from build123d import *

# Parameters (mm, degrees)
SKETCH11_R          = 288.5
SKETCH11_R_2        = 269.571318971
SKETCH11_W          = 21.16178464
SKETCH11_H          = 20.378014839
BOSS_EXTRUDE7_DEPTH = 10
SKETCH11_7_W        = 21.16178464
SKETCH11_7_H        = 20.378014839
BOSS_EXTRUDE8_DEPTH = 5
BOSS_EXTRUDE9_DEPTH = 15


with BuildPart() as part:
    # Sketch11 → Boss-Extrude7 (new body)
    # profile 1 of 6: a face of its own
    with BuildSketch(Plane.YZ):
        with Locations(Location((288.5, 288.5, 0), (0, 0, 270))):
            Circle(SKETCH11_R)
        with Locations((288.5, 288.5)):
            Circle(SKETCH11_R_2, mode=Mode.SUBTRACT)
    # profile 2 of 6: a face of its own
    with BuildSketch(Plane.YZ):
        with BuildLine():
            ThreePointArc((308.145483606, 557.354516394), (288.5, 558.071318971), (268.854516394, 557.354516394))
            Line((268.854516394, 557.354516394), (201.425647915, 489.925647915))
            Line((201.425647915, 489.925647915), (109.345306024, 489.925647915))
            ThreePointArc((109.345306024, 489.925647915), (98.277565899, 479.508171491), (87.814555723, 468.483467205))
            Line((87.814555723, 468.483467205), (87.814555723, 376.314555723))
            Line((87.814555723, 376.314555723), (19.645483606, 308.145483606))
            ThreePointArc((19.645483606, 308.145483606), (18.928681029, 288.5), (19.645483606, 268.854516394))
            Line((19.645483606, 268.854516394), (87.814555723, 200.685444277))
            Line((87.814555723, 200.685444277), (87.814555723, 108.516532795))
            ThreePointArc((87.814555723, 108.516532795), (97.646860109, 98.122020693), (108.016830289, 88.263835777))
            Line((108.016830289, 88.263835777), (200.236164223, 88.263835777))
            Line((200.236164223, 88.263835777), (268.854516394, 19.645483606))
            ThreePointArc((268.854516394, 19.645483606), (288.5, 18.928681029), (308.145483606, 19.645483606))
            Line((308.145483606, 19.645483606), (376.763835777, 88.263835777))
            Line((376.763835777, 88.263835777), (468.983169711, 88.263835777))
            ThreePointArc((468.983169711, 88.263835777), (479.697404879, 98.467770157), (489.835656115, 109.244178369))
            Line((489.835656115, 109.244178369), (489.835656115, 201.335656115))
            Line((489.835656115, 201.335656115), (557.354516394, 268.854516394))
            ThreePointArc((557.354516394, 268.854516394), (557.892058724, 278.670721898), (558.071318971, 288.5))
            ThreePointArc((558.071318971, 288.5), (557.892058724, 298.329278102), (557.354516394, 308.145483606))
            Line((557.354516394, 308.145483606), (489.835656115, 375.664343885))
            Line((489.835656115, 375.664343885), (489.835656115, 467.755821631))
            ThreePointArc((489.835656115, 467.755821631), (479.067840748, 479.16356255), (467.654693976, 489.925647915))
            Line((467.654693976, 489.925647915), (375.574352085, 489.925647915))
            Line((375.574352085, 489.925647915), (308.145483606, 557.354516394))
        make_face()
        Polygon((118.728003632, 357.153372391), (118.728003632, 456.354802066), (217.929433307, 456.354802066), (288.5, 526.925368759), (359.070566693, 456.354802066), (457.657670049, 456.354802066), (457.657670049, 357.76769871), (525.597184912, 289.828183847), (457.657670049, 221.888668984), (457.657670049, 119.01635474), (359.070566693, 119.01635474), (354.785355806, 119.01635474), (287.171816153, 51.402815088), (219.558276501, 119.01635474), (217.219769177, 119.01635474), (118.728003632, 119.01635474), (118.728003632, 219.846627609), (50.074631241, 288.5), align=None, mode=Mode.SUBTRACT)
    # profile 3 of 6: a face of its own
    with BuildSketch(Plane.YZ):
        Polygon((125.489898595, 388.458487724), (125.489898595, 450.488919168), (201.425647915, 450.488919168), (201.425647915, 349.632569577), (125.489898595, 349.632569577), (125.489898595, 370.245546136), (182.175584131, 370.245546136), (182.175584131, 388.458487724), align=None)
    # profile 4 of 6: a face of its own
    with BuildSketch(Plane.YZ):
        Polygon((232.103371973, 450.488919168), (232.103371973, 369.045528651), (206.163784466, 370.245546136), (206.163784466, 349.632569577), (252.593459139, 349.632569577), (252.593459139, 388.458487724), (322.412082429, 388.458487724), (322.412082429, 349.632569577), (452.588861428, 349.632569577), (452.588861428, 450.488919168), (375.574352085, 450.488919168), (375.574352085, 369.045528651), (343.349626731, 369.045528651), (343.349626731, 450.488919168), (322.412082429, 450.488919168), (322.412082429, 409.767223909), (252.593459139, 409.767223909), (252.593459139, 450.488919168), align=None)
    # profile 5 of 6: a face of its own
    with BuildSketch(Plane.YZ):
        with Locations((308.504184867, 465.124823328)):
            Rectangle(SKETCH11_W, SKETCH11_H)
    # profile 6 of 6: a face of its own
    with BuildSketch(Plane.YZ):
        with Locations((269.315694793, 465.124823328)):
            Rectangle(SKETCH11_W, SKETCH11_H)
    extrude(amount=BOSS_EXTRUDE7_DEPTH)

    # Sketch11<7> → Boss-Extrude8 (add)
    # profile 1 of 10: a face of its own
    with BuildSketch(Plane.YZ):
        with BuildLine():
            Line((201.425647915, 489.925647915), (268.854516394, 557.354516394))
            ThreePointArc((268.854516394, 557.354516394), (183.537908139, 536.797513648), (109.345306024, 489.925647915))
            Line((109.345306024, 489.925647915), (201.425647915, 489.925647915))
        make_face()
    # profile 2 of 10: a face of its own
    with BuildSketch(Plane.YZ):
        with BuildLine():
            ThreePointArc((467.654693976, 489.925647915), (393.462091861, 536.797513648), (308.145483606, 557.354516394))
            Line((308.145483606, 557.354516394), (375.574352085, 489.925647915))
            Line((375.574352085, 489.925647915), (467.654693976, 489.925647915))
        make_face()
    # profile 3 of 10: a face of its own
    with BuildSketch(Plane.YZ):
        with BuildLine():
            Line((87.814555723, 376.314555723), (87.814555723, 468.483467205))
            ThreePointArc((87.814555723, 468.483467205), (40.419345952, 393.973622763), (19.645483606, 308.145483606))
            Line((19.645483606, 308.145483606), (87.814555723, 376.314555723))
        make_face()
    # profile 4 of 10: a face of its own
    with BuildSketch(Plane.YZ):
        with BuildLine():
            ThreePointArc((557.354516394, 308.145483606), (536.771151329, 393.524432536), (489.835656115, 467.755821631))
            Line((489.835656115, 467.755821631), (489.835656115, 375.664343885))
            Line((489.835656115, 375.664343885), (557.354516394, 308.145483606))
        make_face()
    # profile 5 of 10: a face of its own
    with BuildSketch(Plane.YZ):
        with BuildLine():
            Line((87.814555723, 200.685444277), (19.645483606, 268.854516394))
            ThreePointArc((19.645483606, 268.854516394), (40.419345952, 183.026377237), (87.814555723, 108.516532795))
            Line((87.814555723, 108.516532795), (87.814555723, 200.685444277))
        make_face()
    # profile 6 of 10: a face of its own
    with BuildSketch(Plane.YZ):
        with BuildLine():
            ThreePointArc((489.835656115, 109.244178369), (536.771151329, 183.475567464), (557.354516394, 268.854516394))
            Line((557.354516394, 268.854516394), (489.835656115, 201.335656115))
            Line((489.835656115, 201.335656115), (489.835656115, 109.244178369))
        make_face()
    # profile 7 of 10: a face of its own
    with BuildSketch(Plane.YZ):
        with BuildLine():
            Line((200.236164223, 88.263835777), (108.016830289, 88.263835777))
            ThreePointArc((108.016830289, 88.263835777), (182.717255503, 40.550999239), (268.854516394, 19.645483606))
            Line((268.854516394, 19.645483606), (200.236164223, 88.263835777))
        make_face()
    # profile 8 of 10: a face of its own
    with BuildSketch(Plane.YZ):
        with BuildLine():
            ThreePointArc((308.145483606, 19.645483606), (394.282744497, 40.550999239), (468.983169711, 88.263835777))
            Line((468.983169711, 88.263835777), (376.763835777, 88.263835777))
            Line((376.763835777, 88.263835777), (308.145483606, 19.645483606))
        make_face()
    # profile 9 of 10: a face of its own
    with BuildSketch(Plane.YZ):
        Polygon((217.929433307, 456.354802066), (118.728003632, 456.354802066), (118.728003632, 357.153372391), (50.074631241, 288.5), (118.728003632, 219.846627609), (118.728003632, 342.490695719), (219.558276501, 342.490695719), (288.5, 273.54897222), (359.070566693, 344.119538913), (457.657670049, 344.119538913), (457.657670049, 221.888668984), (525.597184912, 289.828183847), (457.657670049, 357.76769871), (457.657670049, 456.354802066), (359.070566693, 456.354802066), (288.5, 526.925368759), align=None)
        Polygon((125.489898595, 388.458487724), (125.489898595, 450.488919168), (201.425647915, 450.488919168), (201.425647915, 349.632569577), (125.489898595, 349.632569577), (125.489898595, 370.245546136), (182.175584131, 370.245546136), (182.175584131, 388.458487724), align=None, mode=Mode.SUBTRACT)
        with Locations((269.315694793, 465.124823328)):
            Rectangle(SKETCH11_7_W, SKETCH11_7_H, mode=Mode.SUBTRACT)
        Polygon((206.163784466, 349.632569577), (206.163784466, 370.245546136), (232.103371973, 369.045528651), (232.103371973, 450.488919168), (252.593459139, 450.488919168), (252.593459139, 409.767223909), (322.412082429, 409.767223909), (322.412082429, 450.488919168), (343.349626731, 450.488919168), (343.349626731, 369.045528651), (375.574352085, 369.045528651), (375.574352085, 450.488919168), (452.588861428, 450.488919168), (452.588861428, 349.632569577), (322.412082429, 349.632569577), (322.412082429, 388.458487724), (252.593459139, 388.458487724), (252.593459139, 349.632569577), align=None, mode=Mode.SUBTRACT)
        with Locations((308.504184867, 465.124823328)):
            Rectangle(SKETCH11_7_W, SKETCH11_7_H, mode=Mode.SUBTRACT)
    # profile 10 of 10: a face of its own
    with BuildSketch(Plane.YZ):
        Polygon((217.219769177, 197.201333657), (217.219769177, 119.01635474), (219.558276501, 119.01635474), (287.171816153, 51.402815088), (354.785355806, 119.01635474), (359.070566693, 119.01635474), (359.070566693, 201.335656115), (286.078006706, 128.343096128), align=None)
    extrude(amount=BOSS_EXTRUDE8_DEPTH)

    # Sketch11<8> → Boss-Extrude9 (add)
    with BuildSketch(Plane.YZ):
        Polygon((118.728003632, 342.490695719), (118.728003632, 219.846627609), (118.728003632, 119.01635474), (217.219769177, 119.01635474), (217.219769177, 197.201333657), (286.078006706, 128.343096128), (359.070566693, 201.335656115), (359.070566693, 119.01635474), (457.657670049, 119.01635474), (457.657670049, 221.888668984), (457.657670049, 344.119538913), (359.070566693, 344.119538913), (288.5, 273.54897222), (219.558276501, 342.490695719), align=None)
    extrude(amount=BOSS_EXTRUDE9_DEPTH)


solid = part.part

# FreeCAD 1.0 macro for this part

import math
import FreeCAD as App
import Part
import Sketcher
Q = App.Units.Quantity

doc = App.newDocument("Part")
body = doc.addObject("PartDesign::Body", "Body")
body.AllowCompound = True

# Sketch on YZ plane
sketch1 = body.newObject("Sketcher::SketchObject", "Sketch")
sketch1.AttachmentSupport = (doc.getObject("YZ_Plane"), [""])
sketch1.MapMode = "FlatFace"
sketch1.addGeometry([
    Part.Circle(App.Vector(288, 288, 0), App.Vector(0, 0, 1), 288),  # 0
    Part.ArcOfCircle(Part.Circle(App.Vector(288, 288, 0), App.Vector(0, 0, 1), 270), math.radians(4), math.radians(42)),  # 1
    Part.LineSegment(App.Vector(557, 308, 0), App.Vector(490, 376, 0)),  # 2
    Part.LineSegment(App.Vector(490, 376, 0), App.Vector(490, 468, 0)),  # 3
    Part.ArcOfCircle(Part.Circle(App.Vector(288, 288, 0), App.Vector(0, 0, 1), 270), math.radians(48), math.radians(86)),  # 4
    Part.LineSegment(App.Vector(468, 490, 0), App.Vector(376, 490, 0)),  # 5
    Part.LineSegment(App.Vector(376, 490, 0), App.Vector(308, 557, 0)),  # 6
    Part.ArcOfCircle(Part.Circle(App.Vector(288, 288, 0), App.Vector(0, 0, 1), 270), math.radians(94), math.radians(132)),  # 7
    Part.LineSegment(App.Vector(269, 557, 0), App.Vector(201, 490, 0)),  # 8
    Part.LineSegment(App.Vector(201, 490, 0), App.Vector(109, 490, 0)),  # 9
    Part.ArcOfCircle(Part.Circle(App.Vector(288, 288, 0), App.Vector(0, 0, 1), 270), math.radians(138), math.radians(176)),  # 10
    Part.LineSegment(App.Vector(88, 468, 0), App.Vector(88, 376, 0)),  # 11
    Part.LineSegment(App.Vector(88, 376, 0), App.Vector(20, 308, 0)),  # 12
    Part.ArcOfCircle(Part.Circle(App.Vector(288, 288, 0), App.Vector(0, 0, 1), 270), math.radians(-176), math.radians(-138)),  # 13
    Part.LineSegment(App.Vector(20, 269, 0), App.Vector(88, 201, 0)),  # 14
    Part.LineSegment(App.Vector(88, 201, 0), App.Vector(88, 109, 0)),  # 15
    Part.ArcOfCircle(Part.Circle(App.Vector(288, 288, 0), App.Vector(0, 0, 1), 270), math.radians(-132), math.radians(-94)),  # 16
    Part.LineSegment(App.Vector(108, 88, 0), App.Vector(200, 88, 0)),  # 17
    Part.LineSegment(App.Vector(200, 88, 0), App.Vector(269, 20, 0)),  # 18
    Part.ArcOfCircle(Part.Circle(App.Vector(288, 288, 0), App.Vector(0, 0, 1), 270), math.radians(-86), math.radians(-48)),  # 19
    Part.LineSegment(App.Vector(308, 20, 0), App.Vector(377, 88, 0)),  # 20
    Part.LineSegment(App.Vector(377, 88, 0), App.Vector(469, 88, 0)),  # 21
    Part.ArcOfCircle(Part.Circle(App.Vector(288, 288, 0), App.Vector(0, 0, 1), 270), math.radians(-42), math.radians(-4)),  # 22
    Part.LineSegment(App.Vector(490, 109, 0), App.Vector(490, 201, 0)),  # 23
    Part.LineSegment(App.Vector(490, 201, 0), App.Vector(557, 269, 0)),  # 24
    Part.LineSegment(App.Vector(220, 119, 0), App.Vector(119, 119, 0)),  # 25
    Part.LineSegment(App.Vector(119, 119, 0), App.Vector(119, 220, 0)),  # 26
    Part.LineSegment(App.Vector(119, 220, 0), App.Vector(50, 288, 0)),  # 27
    Part.LineSegment(App.Vector(50, 288, 0), App.Vector(119, 357, 0)),  # 28
    Part.LineSegment(App.Vector(119, 357, 0), App.Vector(119, 456, 0)),  # 29
    Part.LineSegment(App.Vector(119, 456, 0), App.Vector(218, 456, 0)),  # 30
    Part.LineSegment(App.Vector(218, 456, 0), App.Vector(288, 527, 0)),  # 31
    Part.LineSegment(App.Vector(288, 527, 0), App.Vector(359, 456, 0)),  # 32
    Part.LineSegment(App.Vector(359, 456, 0), App.Vector(458, 456, 0)),  # 33
    Part.LineSegment(App.Vector(458, 456, 0), App.Vector(458, 358, 0)),  # 34
    Part.LineSegment(App.Vector(458, 358, 0), App.Vector(526, 290, 0)),  # 35
    Part.LineSegment(App.Vector(526, 290, 0), App.Vector(458, 222, 0)),  # 36
    Part.LineSegment(App.Vector(458, 222, 0), App.Vector(458, 119, 0)),  # 37
    Part.LineSegment(App.Vector(458, 119, 0), App.Vector(355, 119, 0)),  # 38
    Part.LineSegment(App.Vector(355, 119, 0), App.Vector(287, 51, 0)),  # 39
    Part.LineSegment(App.Vector(287, 51, 0), App.Vector(220, 119, 0)),  # 40
    Part.LineSegment(App.Vector(125, 450, 0), App.Vector(125, 388, 0)),  # 41
    Part.LineSegment(App.Vector(125, 388, 0), App.Vector(182, 388, 0)),  # 42
    Part.LineSegment(App.Vector(182, 388, 0), App.Vector(182, 370, 0)),  # 43
    Part.LineSegment(App.Vector(182, 370, 0), App.Vector(125, 370, 0)),  # 44
    Part.LineSegment(App.Vector(125, 370, 0), App.Vector(125, 350, 0)),  # 45
    Part.LineSegment(App.Vector(125, 350, 0), App.Vector(201, 350, 0)),  # 46
    Part.LineSegment(App.Vector(201, 350, 0), App.Vector(201, 450, 0)),  # 47
    Part.LineSegment(App.Vector(201, 450, 0), App.Vector(125, 450, 0)),  # 48
    Part.LineSegment(App.Vector(232, 450, 0), App.Vector(232, 369, 0)),  # 49
    Part.LineSegment(App.Vector(232, 369, 0), App.Vector(206, 370, 0)),  # 50
    Part.LineSegment(App.Vector(206, 370, 0), App.Vector(206, 350, 0)),  # 51
    Part.LineSegment(App.Vector(206, 350, 0), App.Vector(253, 350, 0)),  # 52
    Part.LineSegment(App.Vector(253, 350, 0), App.Vector(253, 388, 0)),  # 53
    Part.LineSegment(App.Vector(253, 388, 0), App.Vector(322, 388, 0)),  # 54
    Part.LineSegment(App.Vector(322, 388, 0), App.Vector(322, 350, 0)),  # 55
    Part.LineSegment(App.Vector(322, 350, 0), App.Vector(453, 350, 0)),  # 56
    Part.LineSegment(App.Vector(453, 350, 0), App.Vector(453, 450, 0)),  # 57
    Part.LineSegment(App.Vector(453, 450, 0), App.Vector(376, 450, 0)),  # 58
    Part.LineSegment(App.Vector(376, 450, 0), App.Vector(376, 369, 0)),  # 59
    Part.LineSegment(App.Vector(376, 369, 0), App.Vector(343, 369, 0)),  # 60
    Part.LineSegment(App.Vector(343, 369, 0), App.Vector(343, 450, 0)),  # 61
    Part.LineSegment(App.Vector(343, 450, 0), App.Vector(322, 450, 0)),  # 62
    Part.LineSegment(App.Vector(322, 450, 0), App.Vector(322, 410, 0)),  # 63
    Part.LineSegment(App.Vector(322, 410, 0), App.Vector(253, 410, 0)),  # 64
    Part.LineSegment(App.Vector(253, 410, 0), App.Vector(253, 450, 0)),  # 65
    Part.LineSegment(App.Vector(253, 450, 0), App.Vector(232, 450, 0)),  # 66
    Part.LineSegment(App.Vector(298, 475, 0), App.Vector(298, 455, 0)),  # 67
    Part.LineSegment(App.Vector(298, 455, 0), App.Vector(319, 455, 0)),  # 68
    Part.LineSegment(App.Vector(319, 455, 0), App.Vector(319, 475, 0)),  # 69
    Part.LineSegment(App.Vector(319, 475, 0), App.Vector(298, 475, 0)),  # 70
    Part.LineSegment(App.Vector(259, 475, 0), App.Vector(259, 455, 0)),  # 71
    Part.LineSegment(App.Vector(259, 455, 0), App.Vector(280, 455, 0)),  # 72
    Part.LineSegment(App.Vector(280, 455, 0), App.Vector(280, 475, 0)),  # 73
    Part.LineSegment(App.Vector(280, 475, 0), App.Vector(259, 475, 0)),  # 74
], False)
sketch1.addConstraint([
    Sketcher.Constraint("Coincident", 1, 1, 2, 1),
    Sketcher.Constraint("Coincident", 2, 2, 3, 1),
    Sketcher.Constraint("Coincident", 3, 2, 1, 2),
    Sketcher.Constraint("Coincident", 4, 1, 5, 1),
    Sketcher.Constraint("Coincident", 5, 2, 6, 1),
    Sketcher.Constraint("Coincident", 6, 2, 4, 2),
    Sketcher.Constraint("Coincident", 7, 1, 8, 1),
    Sketcher.Constraint("Coincident", 8, 2, 9, 1),
    Sketcher.Constraint("Coincident", 9, 2, 7, 2),
    Sketcher.Constraint("Coincident", 10, 1, 11, 1),
    Sketcher.Constraint("Coincident", 11, 2, 12, 1),
    Sketcher.Constraint("Coincident", 12, 2, 10, 2),
    Sketcher.Constraint("Coincident", 13, 1, 14, 1),
    Sketcher.Constraint("Coincident", 14, 2, 15, 1),
    Sketcher.Constraint("Coincident", 15, 2, 13, 2),
    Sketcher.Constraint("Coincident", 16, 1, 17, 1),
    Sketcher.Constraint("Coincident", 17, 2, 18, 1),
    Sketcher.Constraint("Coincident", 18, 2, 16, 2),
    Sketcher.Constraint("Coincident", 19, 1, 20, 1),
    Sketcher.Constraint("Coincident", 20, 2, 21, 1),
    Sketcher.Constraint("Coincident", 21, 2, 19, 2),
    Sketcher.Constraint("Coincident", 22, 1, 23, 1),
    Sketcher.Constraint("Coincident", 23, 2, 24, 1),
    Sketcher.Constraint("Coincident", 24, 2, 22, 2),
    Sketcher.Constraint("Coincident", 25, 2, 26, 1),
    Sketcher.Constraint("Coincident", 26, 2, 27, 1),
    Sketcher.Constraint("Coincident", 27, 2, 28, 1),
    Sketcher.Constraint("Coincident", 28, 2, 29, 1),
    Sketcher.Constraint("Coincident", 29, 2, 30, 1),
    Sketcher.Constraint("Coincident", 30, 2, 31, 1),
    Sketcher.Constraint("Coincident", 31, 2, 32, 1),
    Sketcher.Constraint("Coincident", 32, 2, 33, 1),
    Sketcher.Constraint("Coincident", 33, 2, 34, 1),
    Sketcher.Constraint("Coincident", 34, 2, 35, 1),
    Sketcher.Constraint("Coincident", 35, 2, 36, 1),
    Sketcher.Constraint("Coincident", 36, 2, 37, 1),
    Sketcher.Constraint("Coincident", 37, 2, 38, 1),
    Sketcher.Constraint("Coincident", 38, 2, 39, 1),
    Sketcher.Constraint("Coincident", 39, 2, 40, 1),
    Sketcher.Constraint("Coincident", 40, 2, 25, 1),
    Sketcher.Constraint("Coincident", 41, 2, 42, 1),
    Sketcher.Constraint("Coincident", 42, 2, 43, 1),
    Sketcher.Constraint("Coincident", 43, 2, 44, 1),
    Sketcher.Constraint("Coincident", 44, 2, 45, 1),
    Sketcher.Constraint("Coincident", 45, 2, 46, 1),
    Sketcher.Constraint("Coincident", 46, 2, 47, 1),
    Sketcher.Constraint("Coincident", 47, 2, 48, 1),
    Sketcher.Constraint("Coincident", 48, 2, 41, 1),
    Sketcher.Constraint("Coincident", 49, 2, 50, 1),
    Sketcher.Constraint("Coincident", 50, 2, 51, 1),
    Sketcher.Constraint("Coincident", 51, 2, 52, 1),
    Sketcher.Constraint("Coincident", 52, 2, 53, 1),
    Sketcher.Constraint("Coincident", 53, 2, 54, 1),
    Sketcher.Constraint("Coincident", 54, 2, 55, 1),
    Sketcher.Constraint("Coincident", 55, 2, 56, 1),
    Sketcher.Constraint("Coincident", 56, 2, 57, 1),
    Sketcher.Constraint("Coincident", 57, 2, 58, 1),
    Sketcher.Constraint("Coincident", 58, 2, 59, 1),
    Sketcher.Constraint("Coincident", 59, 2, 60, 1),
    Sketcher.Constraint("Coincident", 60, 2, 61, 1),
    Sketcher.Constraint("Coincident", 61, 2, 62, 1),
    Sketcher.Constraint("Coincident", 62, 2, 63, 1),
    Sketcher.Constraint("Coincident", 63, 2, 64, 1),
    Sketcher.Constraint("Coincident", 64, 2, 65, 1),
    Sketcher.Constraint("Coincident", 65, 2, 66, 1),
    Sketcher.Constraint("Coincident", 66, 2, 49, 1),
    Sketcher.Constraint("Coincident", 67, 2, 68, 1),
    Sketcher.Constraint("Coincident", 68, 2, 69, 1),
    Sketcher.Constraint("Coincident", 69, 2, 70, 1),
    Sketcher.Constraint("Coincident", 70, 2, 67, 1),
    Sketcher.Constraint("Coincident", 71, 2, 72, 1),
    Sketcher.Constraint("Coincident", 72, 2, 73, 1),
    Sketcher.Constraint("Coincident", 73, 2, 74, 1),
    Sketcher.Constraint("Coincident", 74, 2, 71, 1),
    Sketcher.Constraint("Vertical", 3),
    Sketcher.Constraint("Horizontal", 5),
    Sketcher.Constraint("Horizontal", 9),
    Sketcher.Constraint("Vertical", 11),
    Sketcher.Constraint("Vertical", 15),
    Sketcher.Constraint("Horizontal", 17),
    Sketcher.Constraint("Horizontal", 21),
    Sketcher.Constraint("Vertical", 23),
    Sketcher.Constraint("Horizontal", 25),
    Sketcher.Constraint("Vertical", 26),
    Sketcher.Constraint("Vertical", 29),
    Sketcher.Constraint("Horizontal", 30),
    Sketcher.Constraint("Horizontal", 33),
    Sketcher.Constraint("Vertical", 34),
    Sketcher.Constraint("Vertical", 37),
    Sketcher.Constraint("Horizontal", 38),
    Sketcher.Constraint("Vertical", 41),
    Sketcher.Constraint("Horizontal", 42),
    Sketcher.Constraint("Vertical", 43),
    Sketcher.Constraint("Horizontal", 44),
    Sketcher.Constraint("Vertical", 45),
    Sketcher.Constraint("Horizontal", 46),
    Sketcher.Constraint("Vertical", 47),
    Sketcher.Constraint("Horizontal", 48),
    Sketcher.Constraint("Vertical", 49),
    Sketcher.Constraint("Vertical", 51),
    Sketcher.Constraint("Horizontal", 52),
    Sketcher.Constraint("Vertical", 53),
    Sketcher.Constraint("Horizontal", 54),
    Sketcher.Constraint("Vertical", 55),
    Sketcher.Constraint("Horizontal", 56),
    Sketcher.Constraint("Vertical", 57),
    Sketcher.Constraint("Horizontal", 58),
    Sketcher.Constraint("Vertical", 59),
    Sketcher.Constraint("Horizontal", 60),
    Sketcher.Constraint("Vertical", 61),
    Sketcher.Constraint("Horizontal", 62),
    Sketcher.Constraint("Vertical", 63),
    Sketcher.Constraint("Horizontal", 64),
    Sketcher.Constraint("Vertical", 65),
    Sketcher.Constraint("Horizontal", 66),
    Sketcher.Constraint("Vertical", 67),
    Sketcher.Constraint("Horizontal", 68),
    Sketcher.Constraint("Vertical", 69),
    Sketcher.Constraint("Horizontal", 70),
    Sketcher.Constraint("Vertical", 71),
    Sketcher.Constraint("Horizontal", 72),
    Sketcher.Constraint("Vertical", 73),
    Sketcher.Constraint("Horizontal", 74),
    Sketcher.Constraint("Coincident", 1, 3, 0, 3),
    Sketcher.Constraint("Coincident", 4, 3, 0, 3),
    Sketcher.Constraint("Coincident", 7, 3, 0, 3),
    Sketcher.Constraint("Coincident", 10, 3, 0, 3),
    Sketcher.Constraint("Coincident", 13, 3, 0, 3),
    Sketcher.Constraint("Coincident", 16, 3, 0, 3),
    Sketcher.Constraint("Coincident", 19, 3, 0, 3),
    Sketcher.Constraint("Coincident", 22, 3, 0, 3),
    Sketcher.Constraint("Equal", 1, 4),
    Sketcher.Constraint("Equal", 4, 7),
    Sketcher.Constraint("Equal", 7, 10),
    Sketcher.Constraint("Equal", 10, 13),
    Sketcher.Constraint("Equal", 13, 16),
    Sketcher.Constraint("Equal", 16, 19),
    Sketcher.Constraint("Equal", 19, 22),
    Sketcher.Constraint("Parallel", 2, 6),
    Sketcher.Constraint("Perpendicular", 6, 8),
    Sketcher.Constraint("Parallel", 8, 12),
    Sketcher.Constraint("Perpendicular", 12, 14),
    Sketcher.Constraint("Parallel", 14, 18),
    Sketcher.Constraint("Perpendicular", 18, 20),
    Sketcher.Constraint("Parallel", 20, 24),
    Sketcher.Constraint("Perpendicular", 24, 27),
    Sketcher.Constraint("Perpendicular", 27, 28),
    Sketcher.Constraint("Parallel", 28, 31),
    Sketcher.Constraint("Perpendicular", 31, 32),
    Sketcher.Constraint("Parallel", 32, 35),
    Sketcher.Constraint("Perpendicular", 35, 36),
    Sketcher.Constraint("Parallel", 36, 39),
    Sketcher.Constraint("Perpendicular", 39, 40),
    Sketcher.Constraint("Horizontal", 6, 2, 7, 1),
    Sketcher.Constraint("Horizontal", 5, 2, 8, 2),
    Sketcher.Constraint("Horizontal", 1, 1, 12, 2),
    Sketcher.Constraint("Horizontal", 18, 2, 19, 1),
    Sketcher.Constraint("Horizontal", 17, 2, 20, 2),
    Sketcher.Constraint("Horizontal", 13, 1, 24, 2),
    Sketcher.Constraint("Horizontal", 22, 3, 27, 2),
    Sketcher.Constraint("Horizontal", 30, 2, 32, 2),
    Sketcher.Constraint("Horizontal", 25, 2, 37, 2),
    Sketcher.Constraint("Horizontal", 44, 2, 50, 2),
    Sketcher.Constraint("Horizontal", 46, 2, 51, 2),
    Sketcher.Constraint("Horizontal", 42, 2, 53, 2),
    Sketcher.Constraint("Horizontal", 52, 2, 55, 2),
    Sketcher.Constraint("Horizontal", 48, 2, 57, 2),
    Sketcher.Constraint("Horizontal", 49, 2, 59, 2),
    Sketcher.Constraint("Horizontal", 58, 2, 61, 2),
    Sketcher.Constraint("Horizontal", 62, 2, 65, 2),
    Sketcher.Constraint("Horizontal", 68, 2, 71, 2),
    Sketcher.Constraint("Horizontal", 70, 2, 73, 2),
    Sketcher.Constraint("Vertical", 12, 2, 13, 1),
    Sketcher.Constraint("Vertical", 11, 2, 14, 2),
    Sketcher.Constraint("Vertical", 7, 1, 18, 2),
    Sketcher.Constraint("Vertical", 3, 2, 22, 1),
    Sketcher.Constraint("Vertical", 26, 2, 28, 2),
    Sketcher.Constraint("Vertical", 22, 3, 31, 2),
    Sketcher.Constraint("Vertical", 34, 2, 36, 2),
    Sketcher.Constraint("Vertical", 41, 2, 44, 2),
    Sketcher.Constraint("Vertical", 8, 2, 46, 2),
    Sketcher.Constraint("Vertical", 5, 2, 58, 2),
    Sketcher.Constraint("Vertical", 55, 2, 62, 2),
    Sketcher.Constraint("Vertical", 53, 2, 64, 2),
    Sketcher.Constraint("Equal", 5, 9),
    Sketcher.Constraint("Equal", 70, 72),
    Sketcher.Constraint("Equal", 25, 26),
    Sketcher.Constraint("Equal", 30, 29),
    Sketcher.Constraint("Equal", 33, 34),
    Sketcher.Constraint("Equal", 38, 37),
    Sketcher.Constraint("Diameter", 0, Q("577 mm")),
    Sketcher.Constraint("DistanceX", -1, 1, 0, 3, Q("288.5 mm")),
    Sketcher.Constraint("DistanceY", -1, 1, 0, 3, Q("288.5 mm")),
    Sketcher.Constraint("Radius", 1, Q("269.571319 mm")),
    Sketcher.Constraint("DistanceX", 5, 2, 5, 1, Q("92.080342 mm")),
    Sketcher.Constraint("DistanceX", 30, 1, 30, 2, Q("99.20143 mm")),
    Sketcher.Constraint("DistanceX", 46, 1, 46, 2, Q("75.935749 mm")),
    Sketcher.Constraint("DistanceX", 56, 1, 56, 2, Q("130.176779 mm")),
    Sketcher.Constraint("DistanceX", 58, 2, 58, 1, Q("77.014509 mm")),
    Sketcher.Constraint("DistanceY", 11, 2, 11, 1, Q("92.168911 mm")),
    Sketcher.Constraint("DistanceY", 41, 2, 41, 1, Q("62.030431 mm")),
    Sketcher.Constraint("DistanceY", 43, 2, 43, 1, Q("18.212942 mm")),
    Sketcher.Constraint("DistanceY", 47, 1, 47, 2, Q("100.85635 mm")),
    Sketcher.Constraint("DistanceY", 49, 2, 49, 1, Q("81.443391 mm")),
    Sketcher.Constraint("DistanceY", -1, 1, 34, 2, Q("357.767699 mm")),
    Sketcher.Constraint("DistanceX", -1, 1, 41, 2, Q("125.489899 mm")),
    Sketcher.Constraint("Distance", 27, Q("97.09053 mm")),
    Sketcher.Constraint("Distance", 50, Q("25.96733 mm")),
    Sketcher.Constraint("DistanceX", 17, 1, 17, 2, Q("92.219334 mm")),
    Sketcher.Constraint("DistanceX", 25, 2, 25, 1, Q("100.830273 mm")),
    Sketcher.Constraint("DistanceX", 38, 2, 38, 1, Q("102.872314 mm")),
    Sketcher.Constraint("DistanceX", 42, 1, 42, 2, Q("56.685686 mm")),
    Sketcher.Constraint("DistanceX", 52, 1, 52, 2, Q("46.429675 mm")),
    Sketcher.Constraint("DistanceX", 54, 1, 54, 2, Q("69.818623 mm")),
    Sketcher.Constraint("DistanceX", 60, 2, 60, 1, Q("32.224725 mm")),
    Sketcher.Constraint("DistanceX", 68, 1, 68, 2, Q("21.161785 mm")),
    Sketcher.Constraint("DistanceY", 3, 1, 3, 2, Q("92.091478 mm")),
    Sketcher.Constraint("DistanceY", 63, 2, 63, 1, Q("40.721695 mm")),
    Sketcher.Constraint("DistanceY", 67, 2, 67, 1, Q("20.378015 mm")),
    Sketcher.Constraint("DistanceY", -1, 1, 3, 2, Q("467.755822 mm")),
    Sketcher.Constraint("DistanceX", -1, 1, 27, 2, Q("50.074631 mm")),
    Sketcher.Constraint("DistanceY", -1, 1, 45, 2, Q("349.63257 mm")),
    Sketcher.Constraint("DistanceY", -1, 1, 69, 2, Q("475.313831 mm")),
    Sketcher.Constraint("DistanceX", -1, 1, 67, 2, Q("297.923293 mm")),
    Sketcher.Constraint("DistanceX", -1, 1, 71, 2, Q("258.734802 mm")),
])
pad1 = body.newObject("PartDesign::Pad", "Pad")
pad1.Profile = sketch1
pad1.Length = 10

# Sketch on YZ plane
sketch2 = body.newObject("Sketcher::SketchObject", "Sketch001")
sketch2.AttachmentSupport = (doc.getObject("YZ_Plane"), [""])
sketch2.MapMode = "FlatFace"
sketch2.addGeometry([
    Part.LineSegment(App.Vector(201.4, 489.9, 0), App.Vector(268.9, 557.4, 0)),  # 0
    Part.ArcOfCircle(Part.Circle(App.Vector(288.5, 288.5, 0), App.Vector(0, 0, 1), 269.6), math.radians(94), math.radians(132)),  # 1
    Part.LineSegment(App.Vector(109.3, 489.9, 0), App.Vector(201.4, 489.9, 0)),  # 2
    Part.ArcOfCircle(Part.Circle(App.Vector(288.5, 288.5, 0), App.Vector(0, 0, 1), 269.6), math.radians(48), math.radians(86)),  # 3
    Part.LineSegment(App.Vector(308.1, 557.4, 0), App.Vector(375.6, 489.9, 0)),  # 4
    Part.LineSegment(App.Vector(375.6, 489.9, 0), App.Vector(467.7, 489.9, 0)),  # 5
    Part.LineSegment(App.Vector(87.8, 376.3, 0), App.Vector(87.8, 468.5, 0)),  # 6
    Part.ArcOfCircle(Part.Circle(App.Vector(288.5, 288.5, 0), App.Vector(0, 0, 1), 269.6), math.radians(138), math.radians(176)),  # 7
    Part.LineSegment(App.Vector(19.6, 308.1, 0), App.Vector(87.8, 376.3, 0)),  # 8
    Part.ArcOfCircle(Part.Circle(App.Vector(288.5, 288.5, 0), App.Vector(0, 0, 1), 269.6), math.radians(4), math.radians(42)),  # 9
    Part.LineSegment(App.Vector(489.8, 467.8, 0), App.Vector(489.8, 375.7, 0)),  # 10
    Part.LineSegment(App.Vector(489.8, 375.7, 0), App.Vector(557.4, 308.1, 0)),  # 11
    Part.LineSegment(App.Vector(87.8, 200.7, 0), App.Vector(19.6, 268.9, 0)),  # 12
    Part.ArcOfCircle(Part.Circle(App.Vector(288.5, 288.5, 0), App.Vector(0, 0, 1), 269.6), math.radians(-176), math.radians(-138)),  # 13
    Part.LineSegment(App.Vector(87.8, 108.5, 0), App.Vector(87.8, 200.7, 0)),  # 14
    Part.ArcOfCircle(Part.Circle(App.Vector(288.5, 288.5, 0), App.Vector(0, 0, 1), 269.6), math.radians(-42), math.radians(-4)),  # 15
    Part.LineSegment(App.Vector(557.4, 268.9, 0), App.Vector(489.8, 201.3, 0)),  # 16
    Part.LineSegment(App.Vector(489.8, 201.3, 0), App.Vector(489.8, 109.2, 0)),  # 17
    Part.LineSegment(App.Vector(200.2, 88.3, 0), App.Vector(108, 88.3, 0)),  # 18
    Part.ArcOfCircle(Part.Circle(App.Vector(288.5, 288.5, 0), App.Vector(0, 0, 1), 269.6), math.radians(-132), math.radians(-94)),  # 19
    Part.LineSegment(App.Vector(268.9, 19.6, 0), App.Vector(200.2, 88.3, 0)),  # 20
    Part.ArcOfCircle(Part.Circle(App.Vector(288.5, 288.5, 0), App.Vector(0, 0, 1), 269.6), math.radians(-86), math.radians(-48)),  # 21
    Part.LineSegment(App.Vector(469, 88.3, 0), App.Vector(376.8, 88.3, 0)),  # 22
    Part.LineSegment(App.Vector(376.8, 88.3, 0), App.Vector(308.1, 19.6, 0)),  # 23
    Part.LineSegment(App.Vector(217.9, 456.4, 0), App.Vector(118.7, 456.4, 0)),  # 24
    Part.LineSegment(App.Vector(118.7, 456.4, 0), App.Vector(118.7, 357.2, 0)),  # 25
    Part.LineSegment(App.Vector(118.7, 357.2, 0), App.Vector(50.1, 288.5, 0)),  # 26
    Part.LineSegment(App.Vector(50.1, 288.5, 0), App.Vector(118.7, 219.8, 0)),  # 27
    Part.LineSegment(App.Vector(118.7, 219.8, 0), App.Vector(118.7, 342.5, 0)),  # 28
    Part.LineSegment(App.Vector(118.7, 342.5, 0), App.Vector(219.6, 342.5, 0)),  # 29
    Part.LineSegment(App.Vector(219.6, 342.5, 0), App.Vector(288.5, 273.5, 0)),  # 30
    Part.LineSegment(App.Vector(288.5, 273.5, 0), App.Vector(359.1, 344.1, 0)),  # 31
    Part.LineSegment(App.Vector(359.1, 344.1, 0), App.Vector(457.7, 344.1, 0)),  # 32
    Part.LineSegment(App.Vector(457.7, 344.1, 0), App.Vector(457.7, 221.9, 0)),  # 33
    Part.LineSegment(App.Vector(457.7, 221.9, 0), App.Vector(525.6, 289.8, 0)),  # 34
    Part.LineSegment(App.Vector(525.6, 289.8, 0), App.Vector(457.7, 357.8, 0)),  # 35
    Part.LineSegment(App.Vector(457.7, 357.8, 0), App.Vector(457.7, 456.4, 0)),  # 36
    Part.LineSegment(App.Vector(457.7, 456.4, 0), App.Vector(359.1, 456.4, 0)),  # 37
    Part.LineSegment(App.Vector(359.1, 456.4, 0), App.Vector(288.5, 526.9, 0)),  # 38
    Part.LineSegment(App.Vector(288.5, 526.9, 0), App.Vector(217.9, 456.4, 0)),  # 39
    Part.LineSegment(App.Vector(182.2, 388.5, 0), App.Vector(125.5, 388.5, 0)),  # 40
    Part.LineSegment(App.Vector(125.5, 388.5, 0), App.Vector(125.5, 450.5, 0)),  # 41
    Part.LineSegment(App.Vector(125.5, 450.5, 0), App.Vector(201.4, 450.5, 0)),  # 42
    Part.LineSegment(App.Vector(201.4, 450.5, 0), App.Vector(201.4, 349.6, 0)),  # 43
    Part.LineSegment(App.Vector(201.4, 349.6, 0), App.Vector(125.5, 349.6, 0)),  # 44
    Part.LineSegment(App.Vector(125.5, 349.6, 0), App.Vector(125.5, 370.2, 0)),  # 45
    Part.LineSegment(App.Vector(125.5, 370.2, 0), App.Vector(182.2, 370.2, 0)),  # 46
    Part.LineSegment(App.Vector(182.2, 370.2, 0), App.Vector(182.2, 388.5, 0)),  # 47
    Part.LineSegment(App.Vector(252.6, 349.6, 0), App.Vector(206.2, 349.6, 0)),  # 48
    Part.LineSegment(App.Vector(206.2, 349.6, 0), App.Vector(206.2, 370.2, 0)),  # 49
    Part.LineSegment(App.Vector(206.2, 370.2, 0), App.Vector(232.1, 369, 0)),  # 50
    Part.LineSegment(App.Vector(232.1, 369, 0), App.Vector(232.1, 450.5, 0)),  # 51
    Part.LineSegment(App.Vector(232.1, 450.5, 0), App.Vector(252.6, 450.5, 0)),  # 52
    Part.LineSegment(App.Vector(252.6, 450.5, 0), App.Vector(252.6, 409.8, 0)),  # 53
    Part.LineSegment(App.Vector(252.6, 409.8, 0), App.Vector(322.4, 409.8, 0)),  # 54
    Part.LineSegment(App.Vector(322.4, 409.8, 0), App.Vector(322.4, 450.5, 0)),  # 55
    Part.LineSegment(App.Vector(322.4, 450.5, 0), App.Vector(343.3, 450.5, 0)),  # 56
    Part.LineSegment(App.Vector(343.3, 450.5, 0), App.Vector(343.3, 369, 0)),  # 57
    Part.LineSegment(App.Vector(343.3, 369, 0), App.Vector(375.6, 369, 0)),  # 58
    Part.LineSegment(App.Vector(375.6, 369, 0), App.Vector(375.6, 450.5, 0)),  # 59
    Part.LineSegment(App.Vector(375.6, 450.5, 0), App.Vector(452.6, 450.5, 0)),  # 60
    Part.LineSegment(App.Vector(452.6, 450.5, 0), App.Vector(452.6, 349.6, 0)),  # 61
    Part.LineSegment(App.Vector(452.6, 349.6, 0), App.Vector(322.4, 349.6, 0)),  # 62
    Part.LineSegment(App.Vector(322.4, 349.6, 0), App.Vector(322.4, 388.5, 0)),  # 63
    Part.LineSegment(App.Vector(322.4, 388.5, 0), App.Vector(252.6, 388.5, 0)),  # 64
    Part.LineSegment(App.Vector(252.6, 388.5, 0), App.Vector(252.6, 349.6, 0)),  # 65
    Part.LineSegment(App.Vector(279.9, 454.9, 0), App.Vector(258.7, 454.9, 0)),  # 66
    Part.LineSegment(App.Vector(258.7, 454.9, 0), App.Vector(258.7, 475.3, 0)),  # 67
    Part.LineSegment(App.Vector(258.7, 475.3, 0), App.Vector(279.9, 475.3, 0)),  # 68
    Part.LineSegment(App.Vector(279.9, 475.3, 0), App.Vector(279.9, 454.9, 0)),  # 69
    Part.LineSegment(App.Vector(319.1, 454.9, 0), App.Vector(297.9, 454.9, 0)),  # 70
    Part.LineSegment(App.Vector(297.9, 454.9, 0), App.Vector(297.9, 475.3, 0)),  # 71
    Part.LineSegment(App.Vector(297.9, 475.3, 0), App.Vector(319.1, 475.3, 0)),  # 72
    Part.LineSegment(App.Vector(319.1, 475.3, 0), App.Vector(319.1, 454.9, 0)),  # 73
    Part.LineSegment(App.Vector(217.2, 197.2, 0), App.Vector(217.2, 119, 0)),  # 74
    Part.LineSegment(App.Vector(217.2, 119, 0), App.Vector(219.6, 119, 0)),  # 75
    Part.LineSegment(App.Vector(219.6, 119, 0), App.Vector(287.2, 51.4, 0)),  # 76
    Part.LineSegment(App.Vector(287.2, 51.4, 0), App.Vector(354.8, 119, 0)),  # 77
    Part.LineSegment(App.Vector(354.8, 119, 0), App.Vector(359.1, 119, 0)),  # 78
    Part.LineSegment(App.Vector(359.1, 119, 0), App.Vector(359.1, 201.3, 0)),  # 79
    Part.LineSegment(App.Vector(359.1, 201.3, 0), App.Vector(286.1, 128.3, 0)),  # 80
    Part.LineSegment(App.Vector(286.1, 128.3, 0), App.Vector(217.2, 197.2, 0)),  # 81
], False)
sketch2.addConstraint([
    Sketcher.Constraint("Coincident", 0, 2, 1, 1),
    Sketcher.Constraint("Coincident", 1, 2, 2, 1),
    Sketcher.Constraint("Coincident", 2, 2, 0, 1),
    Sketcher.Constraint("Coincident", 3, 2, 4, 1),
    Sketcher.Constraint("Coincident", 4, 2, 5, 1),
    Sketcher.Constraint("Coincident", 5, 2, 3, 1),
    Sketcher.Constraint("Coincident", 6, 2, 7, 1),
    Sketcher.Constraint("Coincident", 7, 2, 8, 1),
    Sketcher.Constraint("Coincident", 8, 2, 6, 1),
    Sketcher.Constraint("Coincident", 9, 2, 10, 1),
    Sketcher.Constraint("Coincident", 10, 2, 11, 1),
    Sketcher.Constraint("Coincident", 11, 2, 9, 1),
    Sketcher.Constraint("Coincident", 12, 2, 13, 1),
    Sketcher.Constraint("Coincident", 13, 2, 14, 1),
    Sketcher.Constraint("Coincident", 14, 2, 12, 1),
    Sketcher.Constraint("Coincident", 15, 2, 16, 1),
    Sketcher.Constraint("Coincident", 16, 2, 17, 1),
    Sketcher.Constraint("Coincident", 17, 2, 15, 1),
    Sketcher.Constraint("Coincident", 18, 2, 19, 1),
    Sketcher.Constraint("Coincident", 19, 2, 20, 1),
    Sketcher.Constraint("Coincident", 20, 2, 18, 1),
    Sketcher.Constraint("Coincident", 21, 2, 22, 1),
    Sketcher.Constraint("Coincident", 22, 2, 23, 1),
    Sketcher.Constraint("Coincident", 23, 2, 21, 1),
    Sketcher.Constraint("Coincident", 24, 2, 25, 1),
    Sketcher.Constraint("Coincident", 25, 2, 26, 1),
    Sketcher.Constraint("Coincident", 26, 2, 27, 1),
    Sketcher.Constraint("Coincident", 27, 2, 28, 1),
    Sketcher.Constraint("Coincident", 28, 2, 29, 1),
    Sketcher.Constraint("Coincident", 29, 2, 30, 1),
    Sketcher.Constraint("Coincident", 30, 2, 31, 1),
    Sketcher.Constraint("Coincident", 31, 2, 32, 1),
    Sketcher.Constraint("Coincident", 32, 2, 33, 1),
    Sketcher.Constraint("Coincident", 33, 2, 34, 1),
    Sketcher.Constraint("Coincident", 34, 2, 35, 1),
    Sketcher.Constraint("Coincident", 35, 2, 36, 1),
    Sketcher.Constraint("Coincident", 36, 2, 37, 1),
    Sketcher.Constraint("Coincident", 37, 2, 38, 1),
    Sketcher.Constraint("Coincident", 38, 2, 39, 1),
    Sketcher.Constraint("Coincident", 39, 2, 24, 1),
    Sketcher.Constraint("Coincident", 40, 2, 41, 1),
    Sketcher.Constraint("Coincident", 41, 2, 42, 1),
    Sketcher.Constraint("Coincident", 42, 2, 43, 1),
    Sketcher.Constraint("Coincident", 43, 2, 44, 1),
    Sketcher.Constraint("Coincident", 44, 2, 45, 1),
    Sketcher.Constraint("Coincident", 45, 2, 46, 1),
    Sketcher.Constraint("Coincident", 46, 2, 47, 1),
    Sketcher.Constraint("Coincident", 47, 2, 40, 1),
    Sketcher.Constraint("Coincident", 48, 2, 49, 1),
    Sketcher.Constraint("Coincident", 49, 2, 50, 1),
    Sketcher.Constraint("Coincident", 50, 2, 51, 1),
    Sketcher.Constraint("Coincident", 51, 2, 52, 1),
    Sketcher.Constraint("Coincident", 52, 2, 53, 1),
    Sketcher.Constraint("Coincident", 53, 2, 54, 1),
    Sketcher.Constraint("Coincident", 54, 2, 55, 1),
    Sketcher.Constraint("Coincident", 55, 2, 56, 1),
    Sketcher.Constraint("Coincident", 56, 2, 57, 1),
    Sketcher.Constraint("Coincident", 57, 2, 58, 1),
    Sketcher.Constraint("Coincident", 58, 2, 59, 1),
    Sketcher.Constraint("Coincident", 59, 2, 60, 1),
    Sketcher.Constraint("Coincident", 60, 2, 61, 1),
    Sketcher.Constraint("Coincident", 61, 2, 62, 1),
    Sketcher.Constraint("Coincident", 62, 2, 63, 1),
    Sketcher.Constraint("Coincident", 63, 2, 64, 1),
    Sketcher.Constraint("Coincident", 64, 2, 65, 1),
    Sketcher.Constraint("Coincident", 65, 2, 48, 1),
    Sketcher.Constraint("Coincident", 66, 2, 67, 1),
    Sketcher.Constraint("Coincident", 67, 2, 68, 1),
    Sketcher.Constraint("Coincident", 68, 2, 69, 1),
    Sketcher.Constraint("Coincident", 69, 2, 66, 1),
    Sketcher.Constraint("Coincident", 70, 2, 71, 1),
    Sketcher.Constraint("Coincident", 71, 2, 72, 1),
    Sketcher.Constraint("Coincident", 72, 2, 73, 1),
    Sketcher.Constraint("Coincident", 73, 2, 70, 1),
    Sketcher.Constraint("Coincident", 74, 2, 75, 1),
    Sketcher.Constraint("Coincident", 75, 2, 76, 1),
    Sketcher.Constraint("Coincident", 76, 2, 77, 1),
    Sketcher.Constraint("Coincident", 77, 2, 78, 1),
    Sketcher.Constraint("Coincident", 78, 2, 79, 1),
    Sketcher.Constraint("Coincident", 79, 2, 80, 1),
    Sketcher.Constraint("Coincident", 80, 2, 81, 1),
    Sketcher.Constraint("Coincident", 81, 2, 74, 1),
    Sketcher.Constraint("Horizontal", 2),
    Sketcher.Constraint("Horizontal", 5),
    Sketcher.Constraint("Vertical", 6),
    Sketcher.Constraint("Vertical", 10),
    Sketcher.Constraint("Vertical", 14),
    Sketcher.Constraint("Vertical", 17),
    Sketcher.Constraint("Horizontal", 18),
    Sketcher.Constraint("Horizontal", 22),
    Sketcher.Constraint("Horizontal", 24),
    Sketcher.Constraint("Vertical", 25),
    Sketcher.Constraint("Vertical", 28),
    Sketcher.Constraint("Horizontal", 29),
    Sketcher.Constraint("Horizontal", 32),
    Sketcher.Constraint("Vertical", 33),
    Sketcher.Constraint("Vertical", 36),
    Sketcher.Constraint("Horizontal", 37),
    Sketcher.Constraint("Horizontal", 40),
    Sketcher.Constraint("Vertical", 41),
    Sketcher.Constraint("Horizontal", 42),
    Sketcher.Constraint("Vertical", 43),
    Sketcher.Constraint("Horizontal", 44),
    Sketcher.Constraint("Vertical", 45),
    Sketcher.Constraint("Horizontal", 46),
    Sketcher.Constraint("Vertical", 47),
    Sketcher.Constraint("Horizontal", 48),
    Sketcher.Constraint("Vertical", 49),
    Sketcher.Constraint("Vertical", 51),
    Sketcher.Constraint("Horizontal", 52),
    Sketcher.Constraint("Vertical", 53),
    Sketcher.Constraint("Horizontal", 54),
    Sketcher.Constraint("Vertical", 55),
    Sketcher.Constraint("Horizontal", 56),
    Sketcher.Constraint("Vertical", 57),
    Sketcher.Constraint("Horizontal", 58),
    Sketcher.Constraint("Vertical", 59),
    Sketcher.Constraint("Horizontal", 60),
    Sketcher.Constraint("Vertical", 61),
    Sketcher.Constraint("Horizontal", 62),
    Sketcher.Constraint("Vertical", 63),
    Sketcher.Constraint("Horizontal", 64),
    Sketcher.Constraint("Vertical", 65),
    Sketcher.Constraint("Horizontal", 66),
    Sketcher.Constraint("Vertical", 67),
    Sketcher.Constraint("Horizontal", 68),
    Sketcher.Constraint("Vertical", 69),
    Sketcher.Constraint("Horizontal", 70),
    Sketcher.Constraint("Vertical", 71),
    Sketcher.Constraint("Horizontal", 72),
    Sketcher.Constraint("Vertical", 73),
    Sketcher.Constraint("Vertical", 74),
    Sketcher.Constraint("Horizontal", 75),
    Sketcher.Constraint("Horizontal", 78),
    Sketcher.Constraint("Vertical", 79),
    Sketcher.Constraint("Coincident", 3, 3, 1, 3),
    Sketcher.Constraint("Coincident", 7, 3, 1, 3),
    Sketcher.Constraint("Coincident", 9, 3, 1, 3),
    Sketcher.Constraint("Coincident", 13, 3, 1, 3),
    Sketcher.Constraint("Coincident", 15, 3, 1, 3),
    Sketcher.Constraint("Coincident", 19, 3, 1, 3),
    Sketcher.Constraint("Coincident", 21, 3, 1, 3),
    Sketcher.Constraint("Equal", 1, 3),
    Sketcher.Constraint("Equal", 3, 7),
    Sketcher.Constraint("Equal", 7, 9),
    Sketcher.Constraint("Equal", 9, 13),
    Sketcher.Constraint("Equal", 13, 15),
    Sketcher.Constraint("Equal", 15, 19),
    Sketcher.Constraint("Equal", 19, 21),
    Sketcher.Constraint("Perpendicular", 0, 4),
    Sketcher.Constraint("Perpendicular", 4, 8),
    Sketcher.Constraint("Perpendicular", 8, 11),
    Sketcher.Constraint("Parallel", 11, 12),
    Sketcher.Constraint("Perpendicular", 12, 16),
    Sketcher.Constraint("Perpendicular", 16, 20),
    Sketcher.Constraint("Perpendicular", 20, 23),
    Sketcher.Constraint("Parallel", 23, 26),
    Sketcher.Constraint("Perpendicular", 26, 27),
    Sketcher.Constraint("Parallel", 27, 30),
    Sketcher.Constraint("Perpendicular", 30, 31),
    Sketcher.Constraint("Parallel", 31, 34),
    Sketcher.Constraint("Perpendicular", 34, 35),
    Sketcher.Constraint("Parallel", 35, 38),
    Sketcher.Constraint("Perpendicular", 38, 39),
    Sketcher.Constraint("Perpendicular", 39, 76),
    Sketcher.Constraint("Perpendicular", 76, 77),
    Sketcher.Constraint("Parallel", 77, 80),
    Sketcher.Constraint("Perpendicular", 80, 81),
    Sketcher.Constraint("Horizontal", 0, 2, 3, 2),
    Sketcher.Constraint("Horizontal", 2, 2, 4, 2),
    Sketcher.Constraint("Horizontal", 7, 2, 11, 2),
    Sketcher.Constraint("Horizontal", 12, 2, 15, 2),
    Sketcher.Constraint("Horizontal", 20, 2, 21, 2),
    Sketcher.Constraint("Horizontal", 19, 2, 23, 2),
    Sketcher.Constraint("Horizontal", 21, 3, 26, 2),
    Sketcher.Constraint("Horizontal", 24, 2, 36, 2),
    Sketcher.Constraint("Horizontal", 44, 2, 48, 2),
    Sketcher.Constraint("Horizontal", 46, 2, 49, 2),
    Sketcher.Constraint("Horizontal", 42, 2, 51, 2),
    Sketcher.Constraint("Horizontal", 52, 2, 55, 2),
    Sketcher.Constraint("Horizontal", 50, 2, 57, 2),
    Sketcher.Constraint("Horizontal", 56, 2, 59, 2),
    Sketcher.Constraint("Horizontal", 48, 2, 61, 2),
    Sketcher.Constraint("Horizontal", 47, 2, 63, 2),
    Sketcher.Constraint("Horizontal", 69, 2, 70, 2),
    Sketcher.Constraint("Horizontal", 68, 2, 71, 2),
    Sketcher.Constraint("Horizontal", 75, 2, 77, 2),
    Sketcher.Constraint("Horizontal", 16, 2, 79, 2),
    Sketcher.Constraint("Vertical", 7, 2, 12, 2),
    Sketcher.Constraint("Vertical", 8, 2, 13, 2),
    Sketcher.Constraint("Vertical", 10, 2, 16, 2),
    Sketcher.Constraint("Vertical", 0, 2, 19, 2),
    Sketcher.Constraint("Vertical", 25, 2, 27, 2),
    Sketcher.Constraint("Vertical", 21, 3, 30, 2),
    Sketcher.Constraint("Vertical", 33, 2, 35, 2),
    Sketcher.Constraint("Vertical", 31, 2, 37, 2),
    Sketcher.Constraint("Vertical", 30, 2, 38, 2),
    Sketcher.Constraint("Vertical", 2, 2, 42, 2),
    Sketcher.Constraint("Vertical", 41, 2, 44, 2),
    Sketcher.Constraint("Vertical", 4, 2, 58, 2),
    Sketcher.Constraint("Vertical", 55, 2, 62, 2),
    Sketcher.Constraint("Vertical", 53, 2, 64, 2),
    Sketcher.Constraint("Vertical", 29, 2, 75, 2),
    Sketcher.Constraint("Vertical", 37, 2, 78, 2),
    Sketcher.Constraint("Equal", 2, 5),
    Sketcher.Constraint("Equal", 68, 70),
    Sketcher.Constraint("Equal", 24, 25),
    Sketcher.Constraint("Equal", 37, 36),
    Sketcher.Constraint("DistanceX", -1, 1, 1, 3, Q("288.5 mm")),
    Sketcher.Constraint("DistanceY", -1, 1, 1, 3, Q("288.5 mm")),
    Sketcher.Constraint("Radius", 1, Q("269.571319 mm")),
    Sketcher.Constraint("DistanceY", 79, 1, 79, 2, Q("82.319301 mm")),
    Sketcher.Constraint("DistanceX", 2, 1, 2, 2, Q("92.080342 mm")),
    Sketcher.Constraint("DistanceX", 24, 2, 24, 1, Q("99.20143 mm")),
    Sketcher.Constraint("DistanceX", 42, 1, 42, 2, Q("75.935749 mm")),
    Sketcher.Constraint("DistanceX", 60, 1, 60, 2, Q("77.014509 mm")),
    Sketcher.Constraint("DistanceX", 62, 2, 62, 1, Q("130.176779 mm")),
    Sketcher.Constraint("DistanceX", 78, 1, 78, 2, Q("4.285211 mm")),
    Sketcher.Constraint("DistanceY", 6, 1, 6, 2, Q("92.168911 mm")),
    Sketcher.Constraint("DistanceY", 28, 1, 28, 2, Q("122.644068 mm")),
    Sketcher.Constraint("DistanceY", 33, 2, 33, 1, Q("122.23087 mm")),
    Sketcher.Constraint("DistanceY", 41, 1, 41, 2, Q("62.030431 mm")),
    Sketcher.Constraint("DistanceY", 43, 2, 43, 1, Q("100.85635 mm")),
    Sketcher.Constraint("DistanceY", 47, 1, 47, 2, Q("18.212942 mm")),
    Sketcher.Constraint("DistanceY", 51, 1, 51, 2, Q("81.443391 mm")),
    Sketcher.Constraint("DistanceY", 74, 2, 74, 1, Q("78.184979 mm")),
    Sketcher.Constraint("DistanceY", -1, 1, 35, 2, Q("357.767699 mm")),
    Sketcher.Constraint("DistanceX", -1, 1, 40, 2, Q("125.489899 mm")),
    Sketcher.Constraint("Distance", 26, Q("97.09053 mm")),
    Sketcher.Constraint("Distance", 30, Q("97.49832 mm")),
    Sketcher.Constraint("Distance", 50, Q("25.96733 mm")),
    Sketcher.Constraint("Distance", 80, Q("103.227068 mm")),
    Sketcher.Constraint("DistanceX", 18, 2, 18, 1, Q("92.219334 mm")),
    Sketcher.Constraint("DistanceX", 29, 1, 29, 2, Q("100.830273 mm")),
    Sketcher.Constraint("DistanceX", 40, 2, 40, 1, Q("56.685686 mm")),
    Sketcher.Constraint("DistanceX", 48, 2, 48, 1, Q("46.429675 mm")),
    Sketcher.Constraint("DistanceX", 54, 1, 54, 2, Q("69.818623 mm")),
    Sketcher.Constraint("DistanceX", 56, 1, 56, 2, Q("20.937544 mm")),
    Sketcher.Constraint("DistanceX", 66, 2, 66, 1, Q("21.161785 mm")),
    Sketcher.Constraint("DistanceY", 10, 2, 10, 1, Q("92.091478 mm")),
    Sketcher.Constraint("DistanceY", 53, 2, 53, 1, Q("40.721695 mm")),
    Sketcher.Constraint("DistanceY", 67, 1, 67, 2, Q("20.378015 mm")),
    Sketcher.Constraint("DistanceY", -1, 1, 17, 2, Q("109.244178 mm")),
    Sketcher.Constraint("DistanceY", -1, 1, 41, 2, Q("450.488919 mm")),
    Sketcher.Constraint("DistanceY", -1, 1, 67, 2, Q("475.313831 mm")),
    Sketcher.Constraint("DistanceX", -1, 1, 66, 2, Q("258.734802 mm")),
    Sketcher.Constraint("DistanceX", -1, 1, 70, 2, Q("297.923293 mm")),
])
pad2 = body.newObject("PartDesign::Pad", "Pad001")
pad2.Profile = sketch2
pad2.Length = 5

# Sketch on YZ plane
sketch3 = body.newObject("Sketcher::SketchObject", "Sketch002")
sketch3.AttachmentSupport = (doc.getObject("YZ_Plane"), [""])
sketch3.MapMode = "FlatFace"
sketch3.addGeometry([
    Part.LineSegment(App.Vector(119, 342, 0), App.Vector(119, 119, 0)),  # 0
    Part.LineSegment(App.Vector(119, 119, 0), App.Vector(217, 119, 0)),  # 1
    Part.LineSegment(App.Vector(217, 119, 0), App.Vector(217, 197, 0)),  # 2
    Part.LineSegment(App.Vector(217, 197, 0), App.Vector(286, 128, 0)),  # 3
    Part.LineSegment(App.Vector(286, 128, 0), App.Vector(359, 201, 0)),  # 4
    Part.LineSegment(App.Vector(359, 201, 0), App.Vector(359, 119, 0)),  # 5
    Part.LineSegment(App.Vector(359, 119, 0), App.Vector(458, 119, 0)),  # 6
    Part.LineSegment(App.Vector(458, 119, 0), App.Vector(458, 344, 0)),  # 7
    Part.LineSegment(App.Vector(458, 344, 0), App.Vector(359, 344, 0)),  # 8
    Part.LineSegment(App.Vector(359, 344, 0), App.Vector(288, 274, 0)),  # 9
    Part.LineSegment(App.Vector(288, 274, 0), App.Vector(220, 342, 0)),  # 10
    Part.LineSegment(App.Vector(220, 342, 0), App.Vector(119, 342, 0)),  # 11
], False)
sketch3.addConstraint([
    Sketcher.Constraint("Coincident", 0, 2, 1, 1),
    Sketcher.Constraint("Coincident", 1, 2, 2, 1),
    Sketcher.Constraint("Coincident", 2, 2, 3, 1),
    Sketcher.Constraint("Coincident", 3, 2, 4, 1),
    Sketcher.Constraint("Coincident", 4, 2, 5, 1),
    Sketcher.Constraint("Coincident", 5, 2, 6, 1),
    Sketcher.Constraint("Coincident", 6, 2, 7, 1),
    Sketcher.Constraint("Coincident", 7, 2, 8, 1),
    Sketcher.Constraint("Coincident", 8, 2, 9, 1),
    Sketcher.Constraint("Coincident", 9, 2, 10, 1),
    Sketcher.Constraint("Coincident", 10, 2, 11, 1),
    Sketcher.Constraint("Coincident", 11, 2, 0, 1),
    Sketcher.Constraint("Vertical", 0),
    Sketcher.Constraint("Horizontal", 1),
    Sketcher.Constraint("Vertical", 2),
    Sketcher.Constraint("Vertical", 5),
    Sketcher.Constraint("Horizontal", 6),
    Sketcher.Constraint("Vertical", 7),
    Sketcher.Constraint("Horizontal", 8),
    Sketcher.Constraint("Horizontal", 11),
    Sketcher.Constraint("Perpendicular", 3, 4),
    Sketcher.Constraint("Parallel", 4, 9),
    Sketcher.Constraint("Perpendicular", 9, 10),
    Sketcher.Constraint("Horizontal", 1, 2, 5, 2),
    Sketcher.Constraint("Vertical", 5, 2, 8, 2),
    Sketcher.Constraint("Angle", 3, Q("-45 deg")),
    Sketcher.Constraint("DistanceX", -1, 1, 9, 2, Q("288.5 mm")),
    Sketcher.Constraint("DistanceY", 5, 2, 5, 1, Q("82.319301 mm")),
    Sketcher.Constraint("DistanceY", 0, 2, 0, 1, Q("223.474341 mm")),
    Sketcher.Constraint("DistanceY", 2, 1, 2, 2, Q("78.184979 mm")),
    Sketcher.Constraint("DistanceX", 1, 2, 6, 2, Q("240.437901 mm")),
    Sketcher.Constraint("Distance", 4, Q("103.227068 mm")),
    Sketcher.Constraint("Distance", 10, Q("97.49832 mm")),
    Sketcher.Constraint("DistanceX", 1, 1, 1, 2, Q("98.491766 mm")),
    Sketcher.Constraint("DistanceX", 11, 2, 11, 1, Q("100.830273 mm")),
    Sketcher.Constraint("DistanceY", -1, 1, 7, 2, Q("344.119539 mm")),
])
pad3 = body.newObject("PartDesign::Pad", "Pad002")
pad3.Profile = sketch3
pad3.Length = 15

doc.recompute()
